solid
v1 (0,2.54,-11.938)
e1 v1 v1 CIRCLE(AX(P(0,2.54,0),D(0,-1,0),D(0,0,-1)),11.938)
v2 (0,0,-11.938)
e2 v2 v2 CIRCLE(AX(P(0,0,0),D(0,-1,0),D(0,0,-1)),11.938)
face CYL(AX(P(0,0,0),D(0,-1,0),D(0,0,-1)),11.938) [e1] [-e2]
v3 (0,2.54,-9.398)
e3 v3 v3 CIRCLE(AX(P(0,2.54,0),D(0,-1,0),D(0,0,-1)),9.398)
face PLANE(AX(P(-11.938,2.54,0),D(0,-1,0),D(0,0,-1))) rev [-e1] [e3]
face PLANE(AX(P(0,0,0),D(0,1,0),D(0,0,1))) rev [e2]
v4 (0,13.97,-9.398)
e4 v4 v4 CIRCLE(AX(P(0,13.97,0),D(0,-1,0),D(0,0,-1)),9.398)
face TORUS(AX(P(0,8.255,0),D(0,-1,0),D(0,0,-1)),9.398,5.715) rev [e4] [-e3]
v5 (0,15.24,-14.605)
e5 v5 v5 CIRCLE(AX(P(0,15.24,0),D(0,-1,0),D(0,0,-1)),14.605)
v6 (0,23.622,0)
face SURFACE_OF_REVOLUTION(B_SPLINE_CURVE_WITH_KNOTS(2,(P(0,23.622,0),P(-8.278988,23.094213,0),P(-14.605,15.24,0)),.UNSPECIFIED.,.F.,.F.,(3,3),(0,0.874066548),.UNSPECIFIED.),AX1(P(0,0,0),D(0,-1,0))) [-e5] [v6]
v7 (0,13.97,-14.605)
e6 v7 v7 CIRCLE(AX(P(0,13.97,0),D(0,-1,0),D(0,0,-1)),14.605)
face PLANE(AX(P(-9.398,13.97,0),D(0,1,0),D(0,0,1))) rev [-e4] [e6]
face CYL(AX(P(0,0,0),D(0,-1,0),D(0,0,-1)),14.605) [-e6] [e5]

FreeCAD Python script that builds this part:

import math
import FreeCAD as App
import Part
import Sketcher

V = App.Vector
Q = App.Units.Quantity

doc = App.newDocument("Part")
params = doc.addObject("Spreadsheet::Sheet", "Params")
for row, (alias, value) in enumerate([
    ("sketch1_width", "0.1 in"),
    ("sketch1_radius", "0.225 in"),
    ("sketch1_width2", "0.47 in"),
    ("revolution_angle", "360 deg"),
], start=1):
    params.set(f"A{row}", alias)
    params.set(f"B{row}", "=" + value)
    params.setAlias(f"B{row}", alias)

body = doc.addObject("PartDesign::Body", "Body")

sketch1 = body.newObject("Sketcher::SketchObject", "Sketch")
sketch1.AttachmentSupport = (doc.getObject("XY_Plane"), [""])
sketch1.MapMode = "FlatFace"
sketch1.addGeometry([
    Part.LineSegment(V(-11.938, 0, 0), V(0, 0, 0)),
    Part.LineSegment(V(0, 0, 0), V(0, 23.622, 0)),
    Part.BSplineCurve([V(-14.605, 15.24, 0), V(-8.278988, 23.094213, 0), V(0, 23.622, 0)], [3, 3], [0, 0.874066548], False, 2, [1, 1, 1], False),
    Part.LineSegment(V(-14.605, 15.24, 0), V(-14.605, 13.97, 0)),
    Part.LineSegment(V(-14.605, 13.97, 0), V(-9.398, 13.97, 0)),
    Part.ArcOfCircle(Part.Circle(V(-9.398, 8.255, 0), V(0, 0, 1), 5.715), math.radians(-90), math.radians(90)),
    Part.LineSegment(V(-9.398, 2.54, 0), V(-11.938, 2.54, 0)),
    Part.LineSegment(V(-11.938, 2.54, 0), V(-11.938, 0, 0)),
], False)
sketch1.addConstraint([
    Sketcher.Constraint("Block", 2),
    Sketcher.Constraint("Coincident", 0, 2, 1, 1),
    Sketcher.Constraint("Coincident", 1, 2, 2, 2),
    Sketcher.Constraint("Coincident", 2, 1, 3, 1),
    Sketcher.Constraint("Coincident", 3, 2, 4, 1),
    Sketcher.Constraint("Tangent", 4, 2, 5, 2),
    Sketcher.Constraint("Tangent", 5, 1, 6, 1),
    Sketcher.Constraint("Coincident", 6, 2, 7, 1),
    Sketcher.Constraint("Coincident", 7, 2, 0, 1),
    Sketcher.Constraint("Horizontal", 0),
    Sketcher.Constraint("Vertical", 1),
    Sketcher.Constraint("Vertical", 3),
    Sketcher.Constraint("Horizontal", 4),
    Sketcher.Constraint("Horizontal", 6),
    Sketcher.Constraint("Vertical", 7),
    Sketcher.Constraint("PointOnObject", 7, 2, -1),
    Sketcher.Constraint("Equal", 6, 7),
    Sketcher.Constraint("DistanceX", 6, 2, 6, 1, Q("0.1 in")),
    Sketcher.Constraint("Radius", 5, Q("0.225 in")),
    Sketcher.Constraint("DistanceX", 0, 1, 0, 2, Q("0.47 in")),
])
sketch1.setExpression("Constraints[17]", "Params.sketch1_width")
sketch1.setExpression("Constraints[18]", "Params.sketch1_radius")
sketch1.setExpression("Constraints[19]", "Params.sketch1_width2")
revolution = body.newObject("PartDesign::Revolution", "Revolution")
revolution.Profile = sketch1
revolution.ReferenceAxis = (sketch1, ["V_Axis"])
revolution.setExpression("Angle", "Params.revolution_angle")

doc.recompute()
